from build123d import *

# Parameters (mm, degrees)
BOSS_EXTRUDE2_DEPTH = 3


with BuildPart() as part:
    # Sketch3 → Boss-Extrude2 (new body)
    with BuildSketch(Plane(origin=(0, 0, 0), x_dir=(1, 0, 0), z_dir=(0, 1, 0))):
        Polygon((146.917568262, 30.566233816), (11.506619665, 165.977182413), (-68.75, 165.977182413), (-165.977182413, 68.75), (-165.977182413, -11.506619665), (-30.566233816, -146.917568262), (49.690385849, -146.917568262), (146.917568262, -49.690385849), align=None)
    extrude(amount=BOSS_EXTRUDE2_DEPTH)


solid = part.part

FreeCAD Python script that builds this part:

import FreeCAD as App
import Part
import Sketcher
Q = App.Units.Quantity


def add_polygon(sketch, points):
    """Adds a closed chain of lines whose ends are joined by coincident constraints."""
    first, n = sketch.GeometryCount, len(points)
    for a, b in zip(points, points[1:] + points[:1]):
        sketch.addGeometry(Part.LineSegment(App.Vector(*a, 0), App.Vector(*b, 0)), False)
    for i in range(n):
        sketch.addConstraint(Sketcher.Constraint("Coincident", first + i, 2, first + (i + 1) % n, 1))

doc = App.newDocument("Part")
params = doc.addObject("Spreadsheet::Sheet", "Params")
for row, (alias, value) in enumerate([
    ("sketch1_length", "191.5 mm"),
    ("sketch1_length2", "137.5 mm"),
    ("pad1_length", "3 mm"),
], start=1):
    params.set(f"A{row}", alias)
    params.set(f"B{row}", "=" + value)
    params.setAlias(f"B{row}", alias)

body = doc.addObject("PartDesign::Body", "Body")

sketch1 = body.newObject("Sketcher::SketchObject", "Sketch")
sketch1.AttachmentSupport = (doc.getObject("XZ_Plane"), [""])
sketch1.MapMode = "FlatFace"
add_polygon(sketch1, [(147, -31), (12, -166), (-69, -166), (-166, -69), (-166, 12), (-31, 147), (50, 147), (147, 50)])
sketch1.addConstraint([
    Sketcher.Constraint("Horizontal", 1),
    Sketcher.Constraint("Vertical", 3),
    Sketcher.Constraint("Horizontal", 5),
    Sketcher.Constraint("Vertical", 7),
    Sketcher.Constraint("Perpendicular", 0, 2),
    Sketcher.Constraint("Perpendicular", 2, 4),
    Sketcher.Constraint("Perpendicular", 4, 6),
    Sketcher.Constraint("Equal", 1, 5),
    Sketcher.Constraint("Equal", 5, 3),
    Sketcher.Constraint("Equal", 3, 7),
    Sketcher.Constraint("Angle", 0, Q("-135 deg")),
    Sketcher.Constraint("Distance", 0, Q("191.5 mm")),
    Sketcher.Constraint("Distance", 2, Q("137.5 mm")),
    Sketcher.Constraint("DistanceX", 1, 2, -1, 1, Q("68.75 mm")),
    Sketcher.Constraint("DistanceY", 2, 2, -1, 1, Q("68.75 mm")),
    Sketcher.Constraint("DistanceX", 1, 2, 1, 1, Q("80.25662 mm")),
])
sketch1.setExpression("Constraints[19]", "Params.sketch1_length")
sketch1.setExpression("Constraints[20]", "Params.sketch1_length2")
pad1 = body.newObject("PartDesign::Pad", "Pad")
pad1.Profile = sketch1
pad1.setExpression("Length", "Params.pad1_length")
pad1.Reversed = True

doc.recompute()
